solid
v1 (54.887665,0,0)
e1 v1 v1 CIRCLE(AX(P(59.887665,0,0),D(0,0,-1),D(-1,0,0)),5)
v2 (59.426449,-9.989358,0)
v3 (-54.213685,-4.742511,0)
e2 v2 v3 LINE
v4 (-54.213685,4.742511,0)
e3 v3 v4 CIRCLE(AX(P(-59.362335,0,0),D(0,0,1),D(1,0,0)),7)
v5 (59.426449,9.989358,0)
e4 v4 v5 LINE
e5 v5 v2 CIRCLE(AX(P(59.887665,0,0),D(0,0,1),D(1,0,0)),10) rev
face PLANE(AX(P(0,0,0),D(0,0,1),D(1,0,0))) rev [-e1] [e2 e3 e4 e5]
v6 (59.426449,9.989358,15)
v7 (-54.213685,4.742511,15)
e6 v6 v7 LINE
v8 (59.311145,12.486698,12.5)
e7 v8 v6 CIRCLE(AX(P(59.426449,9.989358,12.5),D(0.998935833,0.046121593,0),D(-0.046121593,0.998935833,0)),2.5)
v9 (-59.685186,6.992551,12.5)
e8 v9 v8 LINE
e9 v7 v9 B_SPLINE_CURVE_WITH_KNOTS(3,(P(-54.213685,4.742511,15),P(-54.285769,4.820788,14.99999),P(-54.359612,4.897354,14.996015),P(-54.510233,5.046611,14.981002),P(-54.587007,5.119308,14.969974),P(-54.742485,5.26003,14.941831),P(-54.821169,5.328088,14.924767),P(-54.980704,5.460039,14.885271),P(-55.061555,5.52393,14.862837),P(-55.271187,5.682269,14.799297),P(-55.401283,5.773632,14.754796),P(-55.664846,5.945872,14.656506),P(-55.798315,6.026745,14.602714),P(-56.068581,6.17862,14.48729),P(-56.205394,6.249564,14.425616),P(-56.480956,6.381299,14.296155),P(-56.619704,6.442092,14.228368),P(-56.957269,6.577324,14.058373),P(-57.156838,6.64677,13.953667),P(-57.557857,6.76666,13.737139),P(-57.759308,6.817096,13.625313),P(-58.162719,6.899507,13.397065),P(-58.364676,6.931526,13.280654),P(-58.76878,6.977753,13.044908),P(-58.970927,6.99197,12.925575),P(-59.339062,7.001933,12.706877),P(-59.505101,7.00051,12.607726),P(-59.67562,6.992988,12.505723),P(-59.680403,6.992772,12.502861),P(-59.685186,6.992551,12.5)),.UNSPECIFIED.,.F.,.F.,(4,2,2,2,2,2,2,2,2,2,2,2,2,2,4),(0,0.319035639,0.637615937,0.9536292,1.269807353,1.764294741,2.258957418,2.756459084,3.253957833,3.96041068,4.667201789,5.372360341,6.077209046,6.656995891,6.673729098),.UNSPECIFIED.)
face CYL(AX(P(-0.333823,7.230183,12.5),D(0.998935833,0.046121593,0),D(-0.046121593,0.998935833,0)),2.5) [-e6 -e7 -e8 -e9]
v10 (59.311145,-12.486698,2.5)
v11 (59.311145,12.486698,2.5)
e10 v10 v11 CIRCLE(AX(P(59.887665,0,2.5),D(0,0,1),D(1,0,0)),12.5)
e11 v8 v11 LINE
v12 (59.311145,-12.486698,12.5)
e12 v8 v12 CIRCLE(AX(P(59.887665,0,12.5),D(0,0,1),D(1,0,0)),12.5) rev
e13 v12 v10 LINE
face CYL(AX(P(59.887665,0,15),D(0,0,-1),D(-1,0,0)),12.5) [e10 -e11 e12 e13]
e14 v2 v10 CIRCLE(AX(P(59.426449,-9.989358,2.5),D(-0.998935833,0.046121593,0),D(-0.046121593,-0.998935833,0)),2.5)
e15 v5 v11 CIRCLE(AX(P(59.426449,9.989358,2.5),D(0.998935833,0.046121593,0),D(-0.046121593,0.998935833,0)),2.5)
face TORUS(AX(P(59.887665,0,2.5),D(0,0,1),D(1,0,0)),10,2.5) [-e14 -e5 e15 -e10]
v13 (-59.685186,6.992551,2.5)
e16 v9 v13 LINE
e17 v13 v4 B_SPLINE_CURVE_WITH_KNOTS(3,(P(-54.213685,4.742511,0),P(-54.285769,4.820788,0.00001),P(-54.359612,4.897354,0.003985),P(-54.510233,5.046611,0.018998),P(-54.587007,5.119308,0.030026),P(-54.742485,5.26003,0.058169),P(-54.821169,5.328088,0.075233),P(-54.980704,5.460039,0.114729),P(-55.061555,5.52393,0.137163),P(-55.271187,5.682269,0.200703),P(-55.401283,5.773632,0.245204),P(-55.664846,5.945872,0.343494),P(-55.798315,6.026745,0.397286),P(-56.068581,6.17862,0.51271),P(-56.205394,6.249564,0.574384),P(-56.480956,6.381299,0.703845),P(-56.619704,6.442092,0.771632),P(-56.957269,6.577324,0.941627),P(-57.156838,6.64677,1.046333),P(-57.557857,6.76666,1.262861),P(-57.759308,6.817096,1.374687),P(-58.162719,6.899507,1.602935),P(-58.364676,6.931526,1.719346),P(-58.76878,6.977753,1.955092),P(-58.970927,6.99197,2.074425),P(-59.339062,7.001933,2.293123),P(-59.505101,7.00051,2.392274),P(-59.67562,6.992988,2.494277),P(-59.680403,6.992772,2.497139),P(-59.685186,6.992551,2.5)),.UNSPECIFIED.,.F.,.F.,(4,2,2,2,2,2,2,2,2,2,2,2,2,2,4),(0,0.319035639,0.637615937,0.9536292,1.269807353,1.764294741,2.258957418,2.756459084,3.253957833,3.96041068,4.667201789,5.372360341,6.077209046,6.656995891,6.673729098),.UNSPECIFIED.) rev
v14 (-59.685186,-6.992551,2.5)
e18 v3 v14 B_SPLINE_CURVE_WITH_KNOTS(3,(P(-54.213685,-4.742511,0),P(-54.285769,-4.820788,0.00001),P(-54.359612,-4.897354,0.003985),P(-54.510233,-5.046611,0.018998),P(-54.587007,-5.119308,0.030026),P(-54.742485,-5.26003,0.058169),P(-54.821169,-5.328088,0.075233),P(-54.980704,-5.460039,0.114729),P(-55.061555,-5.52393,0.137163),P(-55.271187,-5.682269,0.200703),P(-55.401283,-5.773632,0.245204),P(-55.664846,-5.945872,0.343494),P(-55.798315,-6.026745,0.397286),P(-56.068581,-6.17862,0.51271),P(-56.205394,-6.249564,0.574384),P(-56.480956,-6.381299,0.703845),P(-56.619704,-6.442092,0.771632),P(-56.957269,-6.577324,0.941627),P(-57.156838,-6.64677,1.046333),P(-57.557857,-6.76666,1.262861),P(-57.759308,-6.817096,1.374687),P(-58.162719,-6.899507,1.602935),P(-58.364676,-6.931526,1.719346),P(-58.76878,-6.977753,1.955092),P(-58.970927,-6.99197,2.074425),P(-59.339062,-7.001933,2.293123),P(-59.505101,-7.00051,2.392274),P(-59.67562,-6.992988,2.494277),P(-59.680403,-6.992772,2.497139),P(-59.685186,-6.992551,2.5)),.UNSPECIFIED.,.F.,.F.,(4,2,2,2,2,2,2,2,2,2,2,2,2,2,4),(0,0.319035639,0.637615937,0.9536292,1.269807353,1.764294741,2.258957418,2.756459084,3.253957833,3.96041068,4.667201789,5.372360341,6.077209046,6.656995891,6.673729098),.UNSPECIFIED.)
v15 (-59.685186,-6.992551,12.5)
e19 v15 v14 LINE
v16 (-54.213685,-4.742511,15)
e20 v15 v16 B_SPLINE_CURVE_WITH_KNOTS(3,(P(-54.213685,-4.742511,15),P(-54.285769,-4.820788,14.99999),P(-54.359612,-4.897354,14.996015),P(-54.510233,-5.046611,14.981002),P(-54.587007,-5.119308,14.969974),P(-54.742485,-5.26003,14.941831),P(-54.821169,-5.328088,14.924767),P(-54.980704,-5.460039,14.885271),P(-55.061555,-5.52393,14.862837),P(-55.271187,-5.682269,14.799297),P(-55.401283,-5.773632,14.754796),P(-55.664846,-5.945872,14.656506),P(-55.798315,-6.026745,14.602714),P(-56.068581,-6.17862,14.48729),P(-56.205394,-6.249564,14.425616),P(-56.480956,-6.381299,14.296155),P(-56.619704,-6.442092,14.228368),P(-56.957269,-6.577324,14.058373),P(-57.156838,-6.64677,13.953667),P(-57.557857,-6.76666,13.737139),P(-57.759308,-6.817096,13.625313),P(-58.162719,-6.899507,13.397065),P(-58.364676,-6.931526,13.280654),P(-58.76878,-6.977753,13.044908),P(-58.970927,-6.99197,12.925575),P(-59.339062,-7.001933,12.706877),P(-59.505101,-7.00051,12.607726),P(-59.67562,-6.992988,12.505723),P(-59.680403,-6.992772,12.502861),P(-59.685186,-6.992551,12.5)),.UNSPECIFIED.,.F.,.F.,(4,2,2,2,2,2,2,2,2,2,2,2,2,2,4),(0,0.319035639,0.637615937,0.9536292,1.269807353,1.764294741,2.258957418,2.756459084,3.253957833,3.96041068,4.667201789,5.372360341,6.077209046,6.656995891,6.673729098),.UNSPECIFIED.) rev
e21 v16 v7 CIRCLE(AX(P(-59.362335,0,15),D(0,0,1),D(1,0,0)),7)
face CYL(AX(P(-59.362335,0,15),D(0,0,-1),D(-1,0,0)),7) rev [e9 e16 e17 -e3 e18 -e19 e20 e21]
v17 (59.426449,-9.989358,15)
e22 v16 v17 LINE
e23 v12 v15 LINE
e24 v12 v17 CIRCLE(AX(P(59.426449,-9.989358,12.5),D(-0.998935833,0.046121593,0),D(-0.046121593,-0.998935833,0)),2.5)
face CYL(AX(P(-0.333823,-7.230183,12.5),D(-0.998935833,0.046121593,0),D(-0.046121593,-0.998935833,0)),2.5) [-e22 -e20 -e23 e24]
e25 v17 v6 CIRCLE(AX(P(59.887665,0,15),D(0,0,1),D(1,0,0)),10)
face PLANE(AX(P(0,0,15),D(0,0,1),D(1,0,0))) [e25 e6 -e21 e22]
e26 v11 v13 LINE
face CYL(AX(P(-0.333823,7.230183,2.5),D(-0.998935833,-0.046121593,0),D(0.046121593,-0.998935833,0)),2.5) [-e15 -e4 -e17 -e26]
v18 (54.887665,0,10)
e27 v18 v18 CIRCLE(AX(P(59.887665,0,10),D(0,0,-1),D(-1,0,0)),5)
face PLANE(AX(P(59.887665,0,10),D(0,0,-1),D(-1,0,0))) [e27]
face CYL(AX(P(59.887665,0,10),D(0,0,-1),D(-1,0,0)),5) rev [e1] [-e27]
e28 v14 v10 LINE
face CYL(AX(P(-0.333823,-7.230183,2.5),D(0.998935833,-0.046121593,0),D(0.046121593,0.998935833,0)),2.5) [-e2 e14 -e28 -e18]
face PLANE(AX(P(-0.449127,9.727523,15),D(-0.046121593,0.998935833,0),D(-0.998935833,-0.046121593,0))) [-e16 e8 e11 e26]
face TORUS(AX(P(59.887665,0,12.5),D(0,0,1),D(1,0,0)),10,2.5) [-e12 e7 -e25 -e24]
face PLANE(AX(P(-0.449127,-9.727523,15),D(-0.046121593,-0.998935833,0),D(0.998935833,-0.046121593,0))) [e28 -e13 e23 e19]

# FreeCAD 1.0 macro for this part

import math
import FreeCAD as App
import Part
import Sketcher
from FreeCAD import Vector
Q = App.Units.Quantity


def edges_at(feature, points):
    """Names of the edges that pass closest to the given points."""
    edges = feature.Shape.Edges
    near = lambda p: min(range(len(edges)), key=lambda i: edges[i].distToShape(Part.Vertex(*p))[0])
    return sorted({f"Edge{near(p) + 1}" for p in points})

doc = App.newDocument("Part")
body = doc.addObject("PartDesign::Body", "Body")

# Sketch on XY plane
sketch1 = body.newObject("Sketcher::SketchObject", "Sketch")
sketch1.AttachmentSupport = (doc.getObject("XY_Plane"), [""])
sketch1.MapMode = "FlatFace"
sketch1.addGeometry(Part.ArcOfCircle(Part.Circle(Vector(-59, 0, 0), Vector(0, 0, 1), 7), math.radians(-93), math.radians(93)), False)
sketch1.addGeometry(Part.LineSegment(Vector(-60, -7, 0), Vector(59, -12, 0)), False)
sketch1.addGeometry(Part.ArcOfCircle(Part.Circle(Vector(60, 0, 0), Vector(0, 0, 1), 12), math.radians(-93), math.radians(93)), False)
sketch1.addGeometry(Part.LineSegment(Vector(59, 12, 0), Vector(-60, 7, 0)), False)
sketch1.addConstraint(Sketcher.Constraint("Tangent", 0, 1, 1, 1))
sketch1.addConstraint(Sketcher.Constraint("Tangent", 1, 2, 2, 1))
sketch1.addConstraint(Sketcher.Constraint("Tangent", 2, 2, 3, 1))
sketch1.addConstraint(Sketcher.Constraint("Tangent", 3, 2, 0, 2))
sketch1.addConstraint(Sketcher.Constraint("Symmetric", 1, 2, 2, 2, -1))
sketch1.addConstraint(Sketcher.Constraint("Radius", 0, Q("7 mm")))
sketch1.addConstraint(Sketcher.Constraint("Radius", 2, Q("12.5 mm")))
sketch1.addConstraint(Sketcher.Constraint("DistanceX", 0, 3, 2, 3, Q("119.25 mm")))
sketch1.addConstraint(Sketcher.Constraint("DistanceX", 0, 3, -1, 1, Q("59.362335 mm")))
pad1 = body.newObject("PartDesign::Pad", "Pad")
pad1.Profile = sketch1
pad1.Length = 15

# Sketch on XY plane
sketch2 = body.newObject("Sketcher::SketchObject", "Sketch001")
sketch2.AttachmentSupport = (doc.getObject("XY_Plane"), [""])
sketch2.MapMode = "FlatFace"
sketch2.addGeometry(Part.Circle(Vector(60, 0, 0), Vector(0, 0, 1), 5), False)
sketch2.addConstraint(Sketcher.Constraint("PointOnObject", 0, 3, -1))
sketch2.addConstraint(Sketcher.Constraint("Diameter", 0, Q("10 mm")))
sketch2.addConstraint(Sketcher.Constraint("DistanceX", -1, 1, 0, 3, Q("59.887665 mm")))
pocket1 = body.newObject("PartDesign::Pocket", "Pocket")
pocket1.Profile = sketch2
pocket1.Length = 10
pocket1.Reversed = True
doc.recompute()

fillet = body.newObject("PartDesign::Fillet", "Fillet")
fillet.Base = (pocket1, edges_at(pocket1, [
    (72.388, 0, 15),
    (-0.187, 9.74, 15),
    (-0.187, -9.74, 15),
    (-0.187, 9.74, 0),
    (72.388, 0, 0),
    (-0.187, -9.74, 0),
]))
fillet.Radius = 2.5

doc.recompute()
